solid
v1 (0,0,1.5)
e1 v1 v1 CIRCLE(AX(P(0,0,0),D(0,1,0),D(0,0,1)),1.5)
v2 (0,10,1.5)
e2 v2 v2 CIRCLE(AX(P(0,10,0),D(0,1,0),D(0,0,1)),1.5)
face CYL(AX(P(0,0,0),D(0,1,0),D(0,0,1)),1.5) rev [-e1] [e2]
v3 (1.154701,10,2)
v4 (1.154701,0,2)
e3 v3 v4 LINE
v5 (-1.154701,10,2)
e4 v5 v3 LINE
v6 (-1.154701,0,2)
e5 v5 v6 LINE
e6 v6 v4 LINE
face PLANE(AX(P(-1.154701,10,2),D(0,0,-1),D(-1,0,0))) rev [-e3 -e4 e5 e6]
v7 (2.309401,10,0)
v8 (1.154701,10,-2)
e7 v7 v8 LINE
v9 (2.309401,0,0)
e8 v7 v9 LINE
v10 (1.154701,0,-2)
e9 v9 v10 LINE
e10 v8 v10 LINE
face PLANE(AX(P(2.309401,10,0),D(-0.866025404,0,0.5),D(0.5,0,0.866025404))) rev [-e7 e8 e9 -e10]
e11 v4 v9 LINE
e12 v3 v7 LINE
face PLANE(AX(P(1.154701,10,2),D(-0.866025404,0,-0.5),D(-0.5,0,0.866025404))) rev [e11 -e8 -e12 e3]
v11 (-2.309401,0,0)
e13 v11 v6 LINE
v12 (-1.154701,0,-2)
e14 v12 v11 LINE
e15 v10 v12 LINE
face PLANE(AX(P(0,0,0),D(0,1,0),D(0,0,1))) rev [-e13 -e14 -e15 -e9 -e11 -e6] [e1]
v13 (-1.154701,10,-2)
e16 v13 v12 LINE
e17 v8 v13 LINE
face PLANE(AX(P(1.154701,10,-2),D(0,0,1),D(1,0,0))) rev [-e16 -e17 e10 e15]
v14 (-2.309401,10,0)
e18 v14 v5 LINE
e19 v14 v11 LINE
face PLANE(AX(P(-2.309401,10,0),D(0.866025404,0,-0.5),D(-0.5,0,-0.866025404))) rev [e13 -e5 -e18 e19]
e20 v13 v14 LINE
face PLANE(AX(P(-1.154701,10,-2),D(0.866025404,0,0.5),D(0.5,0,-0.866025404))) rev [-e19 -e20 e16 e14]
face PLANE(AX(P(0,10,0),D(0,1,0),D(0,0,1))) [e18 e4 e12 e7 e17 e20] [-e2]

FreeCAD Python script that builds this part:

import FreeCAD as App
import Part
import Sketcher
Q = App.Units.Quantity


def add_polygon(sketch, points):
    """Adds a closed chain of lines whose ends are joined by coincident constraints."""
    first, n = sketch.GeometryCount, len(points)
    for a, b in zip(points, points[1:] + points[:1]):
        sketch.addGeometry(Part.LineSegment(App.Vector(*a, 0), App.Vector(*b, 0)), False)
    for i in range(n):
        sketch.addConstraint(Sketcher.Constraint("Coincident", first + i, 2, first + (i + 1) % n, 1))

doc = App.newDocument("Part")
body = doc.addObject("PartDesign::Body", "Body")

# Sketch on XZ plane
sketch1 = doc.addObject("Sketcher::SketchObject", "Sketch")
body.addObject(sketch1)
sketch1.AttachmentSupport = (doc.XZ_Plane, [""])
sketch1.MapMode = "FlatFace"
add_polygon(sketch1, [(2.309401, 0), (1.154701, -2), (-1.154701, -2), (-2.309401, 0), (-1.154701, 2), (1.154701, 2)])  # lines 0-5
sketch1.addConstraint([
    Sketcher.Constraint("Horizontal", 1),
    Sketcher.Constraint("Horizontal", 4),
    Sketcher.Constraint("Symmetric", 0, 2, 3, 2, -1, 1),
    Sketcher.Constraint("Symmetric", 2, 2, 5, 2, -1, 1),
    Sketcher.Constraint("PointOnObject", 2, 2, -1),
    Sketcher.Constraint("Parallel", 2, 5),
    Sketcher.Constraint("Vertical", 1, 2, 3, 2),
    Sketcher.Constraint("Angle", 0, Q("-120 deg")),
    Sketcher.Constraint("DistanceY", 0, 2, -1, 1, Q("2 mm")),
    Sketcher.Constraint("DistanceX", 1, 2, 1, 1, Q("2.309401 mm")),
])
pad1 = doc.addObject("PartDesign::Pad", "Pad")
body.addObject(pad1)
pad1.Profile = sketch1
pad1.Length = 10
pad1.Reversed = True

# Sketch on XZ plane
sketch2 = doc.addObject("Sketcher::SketchObject", "Sketch001")
body.addObject(sketch2)
sketch2.AttachmentSupport = (doc.XZ_Plane, [""])
sketch2.MapMode = "FlatFace"
sketch2.AttachmentOffset = App.Placement(App.Vector(0, 0, -10), App.Rotation())
sketch2.addGeometry(Part.Circle(App.Vector(0, 0, 0), App.Vector(0, 0, 1), 1.5), False)
sketch2.addConstraint([
    Sketcher.Constraint("Coincident", 0, 3, -1, 1),
    Sketcher.Constraint("Diameter", 0, Q("3 mm")),
])
pocket1 = doc.addObject("PartDesign::Pocket", "Pocket")
body.addObject(pocket1)
pocket1.Profile = sketch2
pocket1.Type = "ThroughAll"
pocket1.Reversed = True

doc.recompute()
